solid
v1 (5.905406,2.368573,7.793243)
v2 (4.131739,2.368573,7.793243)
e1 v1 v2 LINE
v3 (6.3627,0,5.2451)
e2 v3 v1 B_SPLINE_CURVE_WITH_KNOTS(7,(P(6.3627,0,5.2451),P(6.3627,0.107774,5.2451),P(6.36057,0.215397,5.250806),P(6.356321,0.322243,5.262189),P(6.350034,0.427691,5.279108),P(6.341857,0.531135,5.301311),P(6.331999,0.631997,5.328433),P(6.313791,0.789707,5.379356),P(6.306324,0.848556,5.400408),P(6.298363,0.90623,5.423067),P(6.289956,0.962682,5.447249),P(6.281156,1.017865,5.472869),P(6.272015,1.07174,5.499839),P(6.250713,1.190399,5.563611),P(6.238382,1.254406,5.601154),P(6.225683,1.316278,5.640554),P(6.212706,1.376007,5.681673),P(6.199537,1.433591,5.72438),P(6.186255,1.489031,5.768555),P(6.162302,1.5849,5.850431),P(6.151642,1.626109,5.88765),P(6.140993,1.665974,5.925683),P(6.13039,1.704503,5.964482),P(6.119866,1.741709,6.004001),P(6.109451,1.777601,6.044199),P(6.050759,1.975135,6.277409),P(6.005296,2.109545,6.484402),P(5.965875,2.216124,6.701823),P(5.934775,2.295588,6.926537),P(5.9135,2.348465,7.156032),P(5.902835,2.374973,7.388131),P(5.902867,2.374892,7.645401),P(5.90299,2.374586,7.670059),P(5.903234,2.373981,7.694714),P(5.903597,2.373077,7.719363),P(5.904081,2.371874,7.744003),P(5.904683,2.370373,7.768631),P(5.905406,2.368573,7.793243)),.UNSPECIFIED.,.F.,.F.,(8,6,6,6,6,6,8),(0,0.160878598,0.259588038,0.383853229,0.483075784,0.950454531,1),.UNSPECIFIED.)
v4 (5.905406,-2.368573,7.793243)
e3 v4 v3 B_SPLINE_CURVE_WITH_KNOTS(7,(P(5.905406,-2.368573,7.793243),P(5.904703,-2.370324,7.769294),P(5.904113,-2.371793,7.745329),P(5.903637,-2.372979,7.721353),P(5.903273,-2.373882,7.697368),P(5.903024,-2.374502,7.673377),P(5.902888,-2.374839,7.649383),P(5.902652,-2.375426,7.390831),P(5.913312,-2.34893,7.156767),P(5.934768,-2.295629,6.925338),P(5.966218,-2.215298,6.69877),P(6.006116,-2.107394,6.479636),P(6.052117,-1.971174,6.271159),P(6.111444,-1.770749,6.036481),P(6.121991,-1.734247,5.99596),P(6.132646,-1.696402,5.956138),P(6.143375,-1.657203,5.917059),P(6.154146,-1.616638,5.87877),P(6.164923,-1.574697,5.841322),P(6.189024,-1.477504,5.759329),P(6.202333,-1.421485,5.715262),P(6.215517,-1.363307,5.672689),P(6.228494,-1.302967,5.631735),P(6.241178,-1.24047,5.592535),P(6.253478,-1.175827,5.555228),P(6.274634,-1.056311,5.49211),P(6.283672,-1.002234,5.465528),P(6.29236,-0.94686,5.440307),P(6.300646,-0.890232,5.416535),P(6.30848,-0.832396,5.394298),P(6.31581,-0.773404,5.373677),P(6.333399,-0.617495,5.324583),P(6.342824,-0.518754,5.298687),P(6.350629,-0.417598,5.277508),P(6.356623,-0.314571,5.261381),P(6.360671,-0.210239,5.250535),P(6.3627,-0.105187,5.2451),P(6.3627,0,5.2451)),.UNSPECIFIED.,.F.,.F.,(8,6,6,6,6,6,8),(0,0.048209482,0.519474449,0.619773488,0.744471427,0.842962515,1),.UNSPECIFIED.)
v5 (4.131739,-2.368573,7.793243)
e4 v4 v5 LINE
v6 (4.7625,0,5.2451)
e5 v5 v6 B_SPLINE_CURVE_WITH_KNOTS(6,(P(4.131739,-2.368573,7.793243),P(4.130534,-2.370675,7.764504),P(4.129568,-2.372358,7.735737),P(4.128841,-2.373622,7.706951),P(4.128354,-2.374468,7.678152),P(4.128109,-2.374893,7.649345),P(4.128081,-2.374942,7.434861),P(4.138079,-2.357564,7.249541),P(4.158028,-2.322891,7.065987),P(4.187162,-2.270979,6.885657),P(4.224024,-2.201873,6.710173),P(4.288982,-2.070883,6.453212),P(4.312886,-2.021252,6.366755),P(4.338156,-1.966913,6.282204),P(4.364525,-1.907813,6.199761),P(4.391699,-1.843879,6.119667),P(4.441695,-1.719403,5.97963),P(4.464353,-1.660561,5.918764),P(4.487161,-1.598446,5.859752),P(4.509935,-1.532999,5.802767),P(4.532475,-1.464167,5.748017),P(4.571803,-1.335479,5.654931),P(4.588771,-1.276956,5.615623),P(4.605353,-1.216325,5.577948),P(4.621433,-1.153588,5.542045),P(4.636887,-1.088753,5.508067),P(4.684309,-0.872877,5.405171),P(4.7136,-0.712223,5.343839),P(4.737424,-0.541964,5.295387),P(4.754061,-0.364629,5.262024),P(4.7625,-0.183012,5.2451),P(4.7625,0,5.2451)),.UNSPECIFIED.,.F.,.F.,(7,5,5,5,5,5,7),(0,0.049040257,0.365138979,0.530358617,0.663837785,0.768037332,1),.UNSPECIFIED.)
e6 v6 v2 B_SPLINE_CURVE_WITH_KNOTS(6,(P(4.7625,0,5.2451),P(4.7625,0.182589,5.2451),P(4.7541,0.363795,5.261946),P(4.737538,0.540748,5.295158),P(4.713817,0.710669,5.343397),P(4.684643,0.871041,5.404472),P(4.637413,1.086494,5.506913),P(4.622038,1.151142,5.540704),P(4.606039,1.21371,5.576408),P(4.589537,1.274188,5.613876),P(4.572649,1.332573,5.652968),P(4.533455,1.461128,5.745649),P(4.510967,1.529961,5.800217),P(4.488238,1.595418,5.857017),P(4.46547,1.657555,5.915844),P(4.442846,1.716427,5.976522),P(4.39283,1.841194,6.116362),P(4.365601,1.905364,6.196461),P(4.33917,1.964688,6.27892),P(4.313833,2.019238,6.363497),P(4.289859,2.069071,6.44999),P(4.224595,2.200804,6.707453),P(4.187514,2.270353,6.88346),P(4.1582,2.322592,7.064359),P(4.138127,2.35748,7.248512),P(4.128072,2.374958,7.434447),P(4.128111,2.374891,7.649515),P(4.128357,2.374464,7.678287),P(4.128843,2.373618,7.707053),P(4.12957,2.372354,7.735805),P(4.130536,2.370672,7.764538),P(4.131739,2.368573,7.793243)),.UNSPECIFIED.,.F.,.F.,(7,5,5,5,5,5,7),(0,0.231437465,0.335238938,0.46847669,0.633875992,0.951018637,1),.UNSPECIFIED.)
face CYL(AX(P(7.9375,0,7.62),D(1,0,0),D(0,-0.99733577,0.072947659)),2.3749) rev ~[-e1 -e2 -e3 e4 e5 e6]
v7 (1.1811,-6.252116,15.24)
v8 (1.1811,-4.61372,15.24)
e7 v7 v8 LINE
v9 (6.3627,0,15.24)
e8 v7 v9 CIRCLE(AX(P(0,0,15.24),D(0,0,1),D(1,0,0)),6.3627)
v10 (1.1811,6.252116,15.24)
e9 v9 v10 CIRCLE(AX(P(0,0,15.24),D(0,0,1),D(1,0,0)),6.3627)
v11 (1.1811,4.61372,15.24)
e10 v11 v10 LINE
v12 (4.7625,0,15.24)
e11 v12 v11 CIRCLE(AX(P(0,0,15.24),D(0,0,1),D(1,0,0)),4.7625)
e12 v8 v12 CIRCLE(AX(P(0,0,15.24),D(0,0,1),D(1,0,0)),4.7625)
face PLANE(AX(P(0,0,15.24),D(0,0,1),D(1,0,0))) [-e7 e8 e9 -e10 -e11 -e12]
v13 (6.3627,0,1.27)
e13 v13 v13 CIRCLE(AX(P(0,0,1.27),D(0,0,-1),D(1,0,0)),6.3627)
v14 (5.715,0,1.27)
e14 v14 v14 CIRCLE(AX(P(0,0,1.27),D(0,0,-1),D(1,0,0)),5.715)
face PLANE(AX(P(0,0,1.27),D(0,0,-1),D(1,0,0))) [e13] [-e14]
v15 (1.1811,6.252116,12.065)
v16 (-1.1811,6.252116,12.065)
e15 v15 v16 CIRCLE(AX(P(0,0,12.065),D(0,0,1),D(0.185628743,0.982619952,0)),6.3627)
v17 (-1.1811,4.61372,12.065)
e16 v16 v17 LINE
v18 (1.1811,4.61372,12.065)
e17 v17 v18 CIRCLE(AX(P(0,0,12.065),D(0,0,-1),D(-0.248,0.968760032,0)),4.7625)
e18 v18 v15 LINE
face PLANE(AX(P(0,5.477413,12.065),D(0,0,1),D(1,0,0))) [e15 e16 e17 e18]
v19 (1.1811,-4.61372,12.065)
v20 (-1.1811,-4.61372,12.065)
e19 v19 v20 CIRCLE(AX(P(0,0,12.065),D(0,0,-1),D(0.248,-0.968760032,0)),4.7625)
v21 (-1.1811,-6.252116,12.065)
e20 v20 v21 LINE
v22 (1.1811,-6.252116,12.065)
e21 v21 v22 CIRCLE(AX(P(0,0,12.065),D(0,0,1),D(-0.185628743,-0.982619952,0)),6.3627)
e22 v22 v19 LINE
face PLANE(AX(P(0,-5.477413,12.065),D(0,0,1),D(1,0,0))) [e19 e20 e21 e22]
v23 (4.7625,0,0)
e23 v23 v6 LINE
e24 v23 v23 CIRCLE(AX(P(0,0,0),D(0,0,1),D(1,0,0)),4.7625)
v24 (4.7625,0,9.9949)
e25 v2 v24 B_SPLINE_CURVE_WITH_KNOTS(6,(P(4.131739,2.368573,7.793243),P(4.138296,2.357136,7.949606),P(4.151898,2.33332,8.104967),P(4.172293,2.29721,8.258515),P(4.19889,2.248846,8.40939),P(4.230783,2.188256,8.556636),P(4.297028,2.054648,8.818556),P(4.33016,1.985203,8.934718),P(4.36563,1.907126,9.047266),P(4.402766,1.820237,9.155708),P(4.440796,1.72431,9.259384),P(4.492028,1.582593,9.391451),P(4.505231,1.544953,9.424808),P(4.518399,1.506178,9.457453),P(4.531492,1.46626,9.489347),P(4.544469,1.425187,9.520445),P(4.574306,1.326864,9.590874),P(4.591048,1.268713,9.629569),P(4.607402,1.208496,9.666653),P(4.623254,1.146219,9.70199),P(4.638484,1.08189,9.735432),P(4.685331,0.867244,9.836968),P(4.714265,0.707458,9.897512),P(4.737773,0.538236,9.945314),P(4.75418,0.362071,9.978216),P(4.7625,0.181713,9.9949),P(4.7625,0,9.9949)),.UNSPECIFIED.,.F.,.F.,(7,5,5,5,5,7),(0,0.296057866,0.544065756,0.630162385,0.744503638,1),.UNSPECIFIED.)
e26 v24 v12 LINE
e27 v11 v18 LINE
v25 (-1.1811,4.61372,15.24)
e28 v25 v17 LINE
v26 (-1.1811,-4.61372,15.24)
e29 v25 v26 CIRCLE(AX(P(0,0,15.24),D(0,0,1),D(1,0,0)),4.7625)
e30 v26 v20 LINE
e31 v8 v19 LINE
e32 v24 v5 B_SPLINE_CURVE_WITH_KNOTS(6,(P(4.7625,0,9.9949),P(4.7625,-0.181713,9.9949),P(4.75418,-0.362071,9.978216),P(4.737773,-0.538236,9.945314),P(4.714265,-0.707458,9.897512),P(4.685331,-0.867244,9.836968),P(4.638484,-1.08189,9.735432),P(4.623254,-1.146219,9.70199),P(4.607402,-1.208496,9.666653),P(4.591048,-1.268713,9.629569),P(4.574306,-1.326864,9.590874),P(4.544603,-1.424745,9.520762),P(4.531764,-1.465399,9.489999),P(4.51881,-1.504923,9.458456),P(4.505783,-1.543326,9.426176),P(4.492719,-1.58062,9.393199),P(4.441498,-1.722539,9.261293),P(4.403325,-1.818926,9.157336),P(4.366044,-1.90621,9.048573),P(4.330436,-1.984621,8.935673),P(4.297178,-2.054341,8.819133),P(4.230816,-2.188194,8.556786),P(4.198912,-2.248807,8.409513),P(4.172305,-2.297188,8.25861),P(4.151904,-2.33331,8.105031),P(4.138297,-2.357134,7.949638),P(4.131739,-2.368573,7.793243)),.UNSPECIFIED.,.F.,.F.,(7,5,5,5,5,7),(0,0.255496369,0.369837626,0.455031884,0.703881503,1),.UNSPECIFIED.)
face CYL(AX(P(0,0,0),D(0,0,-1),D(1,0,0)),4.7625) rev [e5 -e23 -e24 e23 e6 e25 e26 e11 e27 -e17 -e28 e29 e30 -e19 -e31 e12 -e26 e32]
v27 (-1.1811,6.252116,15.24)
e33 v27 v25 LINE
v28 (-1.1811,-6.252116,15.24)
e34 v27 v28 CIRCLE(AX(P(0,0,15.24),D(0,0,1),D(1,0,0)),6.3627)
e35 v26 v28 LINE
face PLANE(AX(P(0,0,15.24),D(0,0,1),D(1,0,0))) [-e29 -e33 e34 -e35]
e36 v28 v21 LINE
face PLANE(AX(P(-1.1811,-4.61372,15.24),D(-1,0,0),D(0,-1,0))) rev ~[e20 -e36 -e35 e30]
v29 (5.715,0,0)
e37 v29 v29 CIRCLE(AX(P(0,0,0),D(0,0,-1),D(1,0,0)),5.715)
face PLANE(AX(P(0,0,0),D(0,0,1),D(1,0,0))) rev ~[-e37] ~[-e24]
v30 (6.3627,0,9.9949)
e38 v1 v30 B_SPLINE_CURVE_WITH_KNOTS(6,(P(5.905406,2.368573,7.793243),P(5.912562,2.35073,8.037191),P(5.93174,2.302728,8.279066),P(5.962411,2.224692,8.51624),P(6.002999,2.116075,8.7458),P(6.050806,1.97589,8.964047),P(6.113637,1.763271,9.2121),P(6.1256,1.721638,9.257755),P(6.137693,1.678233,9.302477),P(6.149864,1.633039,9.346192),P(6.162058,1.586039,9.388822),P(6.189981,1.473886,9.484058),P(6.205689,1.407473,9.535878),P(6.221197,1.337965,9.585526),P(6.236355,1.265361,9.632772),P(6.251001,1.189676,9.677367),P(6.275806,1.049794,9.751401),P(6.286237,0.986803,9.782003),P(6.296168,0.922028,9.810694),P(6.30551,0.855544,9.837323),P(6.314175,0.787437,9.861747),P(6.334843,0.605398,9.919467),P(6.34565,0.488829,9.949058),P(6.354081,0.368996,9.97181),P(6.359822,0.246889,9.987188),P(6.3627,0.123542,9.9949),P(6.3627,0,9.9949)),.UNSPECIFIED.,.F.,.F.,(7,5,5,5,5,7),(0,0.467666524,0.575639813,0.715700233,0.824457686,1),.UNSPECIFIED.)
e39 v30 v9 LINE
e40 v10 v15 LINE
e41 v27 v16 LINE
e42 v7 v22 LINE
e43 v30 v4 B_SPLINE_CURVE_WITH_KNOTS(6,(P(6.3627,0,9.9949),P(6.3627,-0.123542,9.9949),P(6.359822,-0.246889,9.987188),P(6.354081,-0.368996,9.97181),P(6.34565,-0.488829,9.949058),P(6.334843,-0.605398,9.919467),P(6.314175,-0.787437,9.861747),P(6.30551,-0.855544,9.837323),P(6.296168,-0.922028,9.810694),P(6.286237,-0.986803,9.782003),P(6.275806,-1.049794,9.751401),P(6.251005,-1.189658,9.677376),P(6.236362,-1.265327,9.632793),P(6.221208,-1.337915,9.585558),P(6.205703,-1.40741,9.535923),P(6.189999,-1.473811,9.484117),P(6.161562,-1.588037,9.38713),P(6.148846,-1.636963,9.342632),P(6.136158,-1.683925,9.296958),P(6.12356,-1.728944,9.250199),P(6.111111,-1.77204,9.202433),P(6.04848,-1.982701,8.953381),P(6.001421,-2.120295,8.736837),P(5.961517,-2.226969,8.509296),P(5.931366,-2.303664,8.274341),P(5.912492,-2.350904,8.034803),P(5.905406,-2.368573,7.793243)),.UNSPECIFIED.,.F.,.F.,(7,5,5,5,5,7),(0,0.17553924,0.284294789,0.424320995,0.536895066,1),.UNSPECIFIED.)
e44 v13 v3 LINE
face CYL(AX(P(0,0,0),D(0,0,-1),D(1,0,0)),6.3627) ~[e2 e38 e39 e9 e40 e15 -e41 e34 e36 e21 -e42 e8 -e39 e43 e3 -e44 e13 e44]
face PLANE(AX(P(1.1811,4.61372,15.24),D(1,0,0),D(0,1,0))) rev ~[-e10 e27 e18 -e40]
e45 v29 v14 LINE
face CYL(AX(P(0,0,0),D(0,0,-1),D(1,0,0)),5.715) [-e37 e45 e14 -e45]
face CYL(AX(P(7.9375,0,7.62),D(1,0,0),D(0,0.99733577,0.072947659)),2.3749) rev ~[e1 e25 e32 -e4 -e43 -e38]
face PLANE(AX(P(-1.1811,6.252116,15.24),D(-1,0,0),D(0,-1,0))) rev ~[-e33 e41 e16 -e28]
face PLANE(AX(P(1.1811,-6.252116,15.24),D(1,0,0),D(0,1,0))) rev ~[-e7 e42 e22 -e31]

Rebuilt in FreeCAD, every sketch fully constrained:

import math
import FreeCAD as App
import Part
import Sketcher
from FreeCAD import Vector
Q = App.Units.Quantity

doc = App.newDocument("Part")
params = doc.addObject("Spreadsheet::Sheet", "Params")
for row, (alias, value) in enumerate([
    ("sketch1_diameter", "0.501 in"),
    ("sketch1_diameter2", "0.375 in"),
    ("pad1_length", "0.6 in"),
    ("sketch2_diameter", "0.45 in"),
    ("sketch2_diameter2", "0.501 in"),
    ("pocket1_length", "0.05 in"),
    ("pocket2_length", "0.2 in"),
    ("sketch4_radius", "0.1875 in"),
    ("pocket3_length", "0.125 in"),
], start=1):
    params.set(f"A{row}", alias)
    params.set(f"B{row}", "=" + value)
    params.setAlias(f"B{row}", alias)

body = doc.addObject("PartDesign::Body", "Body")

# Sketch on XY plane
sketch1 = body.newObject("Sketcher::SketchObject", "Sketch")
sketch1.AttachmentSupport = (doc.getObject("XY_Plane"), [""])
sketch1.MapMode = "FlatFace"
sketch1.addGeometry(Part.Circle(Vector(0, 0, 0), Vector(0, 0, 1), 6.4), False)
sketch1.addGeometry(Part.Circle(Vector(0, 0, 0), Vector(0, 0, 1), 4.8), False)
sketch1.addConstraint(Sketcher.Constraint("Coincident", 0, 3, -1, 1))
sketch1.addConstraint(Sketcher.Constraint("Coincident", 1, 3, -1, 1))
sketch1.addConstraint(Sketcher.Constraint("Diameter", 0, Q("0.501 in")))
sketch1.addConstraint(Sketcher.Constraint("Diameter", 1, Q("0.375 in")))
sketch1.setExpression("Constraints[2]", "Params.sketch1_diameter")
sketch1.setExpression("Constraints[3]", "Params.sketch1_diameter2")
pad1 = body.newObject("PartDesign::Pad", "Pad")
pad1.Profile = sketch1
pad1.setExpression("Length", "Params.pad1_length")

# Sketch on XY plane
sketch2 = body.newObject("Sketcher::SketchObject", "Sketch001")
sketch2.AttachmentSupport = (doc.getObject("XY_Plane"), [""])
sketch2.MapMode = "FlatFace"
sketch2.addGeometry(Part.Circle(Vector(0, 0, 0), Vector(0, 0, 1), 6), False)
sketch2.addGeometry(Part.Circle(Vector(0, 0, 0), Vector(0, 0, 1), 6), False)
sketch2.addConstraint(Sketcher.Constraint("Coincident", 0, 3, -1, 1))
sketch2.addConstraint(Sketcher.Constraint("Coincident", 1, 3, -1, 1))
sketch2.addConstraint(Sketcher.Constraint("Diameter", 1, Q("0.45 in")))
sketch2.addConstraint(Sketcher.Constraint("Diameter", 0, Q("0.501 in")))
sketch2.setExpression("Constraints[2]", "Params.sketch2_diameter")
sketch2.setExpression("Constraints[3]", "Params.sketch2_diameter2")
pocket1 = body.newObject("PartDesign::Pocket", "Pocket")
pocket1.Profile = sketch2
pocket1.setExpression("Length", "Params.pocket1_length")
pocket1.Reversed = True

# Sketch on YZ plane
sketch3 = body.newObject("Sketcher::SketchObject", "Sketch002")
sketch3.AttachmentSupport = (doc.getObject("YZ_Plane"), [""])
sketch3.MapMode = "FlatFace"
sketch3.AttachmentOffset = App.Placement(Vector(0, 0, 0.3125 * 25.4), App.Rotation())
sketch3.addGeometry(Part.ArcOfCircle(Part.Circle(Vector(0, 7.6, 0), Vector(0, 0, 1), 2.4), math.radians(4), math.radians(176)), False)
sketch3.addGeometry(Part.ArcOfCircle(Part.Circle(Vector(0, 7.6, 0), Vector(0, 0, 1), 2.4), math.radians(176), math.radians(364)), False)
sketch3.addConstraint(Sketcher.Constraint("Tangent", 0, 1, 1, 2))
sketch3.addConstraint(Sketcher.Constraint("Coincident", 1, 1, 0, 2))
sketch3.addConstraint(Sketcher.Constraint("Symmetric", 0, 1, 1, 1, -2))
sketch3.addConstraint(Sketcher.Constraint("DistanceY", -1, 1, 0, 3, Q("0.3 in")))
sketch3.addConstraint(Sketcher.Constraint("Radius", 0, Q("0.0935 in")))
sketch3.addConstraint(Sketcher.Constraint("DistanceX", -1, 1, 0, 1, Q("2.368573 mm")))
pocket2 = body.newObject("PartDesign::Pocket", "Pocket001")
pocket2.Profile = sketch3
pocket2.setExpression("Length", "Params.pocket2_length")

# Sketch on XY plane
sketch4 = body.newObject("Sketcher::SketchObject", "Sketch003")
sketch4.AttachmentSupport = (doc.getObject("XY_Plane"), [""])
sketch4.MapMode = "FlatFace"
sketch4.AttachmentOffset = App.Placement(Vector(0, 0, 0.6 * 25.4), App.Rotation())
sketch4.addGeometry(Part.ArcOfCircle(Part.Circle(Vector(0, 0, 0), Vector(0, 0, 1), 6.4), math.radians(79), math.radians(101)), False)
sketch4.addGeometry(Part.LineSegment(Vector(-1.2, 6.3, 0), Vector(-1.2, 4.6, 0)), False)
sketch4.addGeometry(Part.ArcOfCircle(Part.Circle(Vector(0, 0, 0), Vector(0, 0, 1), 4.8), math.radians(76), math.radians(104)), False)
sketch4.addGeometry(Part.LineSegment(Vector(1.2, 4.6, 0), Vector(1.2, 6.3, 0)), False)
sketch4.addGeometry(Part.LineSegment(Vector(-1.2, -4.6, 0), Vector(-1.2, -6.3, 0)), False)
sketch4.addGeometry(Part.ArcOfCircle(Part.Circle(Vector(0, 0, 0), Vector(0, 0, 1), 6.4), math.radians(-101), math.radians(-79)), False)
sketch4.addGeometry(Part.LineSegment(Vector(1.2, -6.3, 0), Vector(1.2, -4.6, 0)), False)
sketch4.addGeometry(Part.ArcOfCircle(Part.Circle(Vector(0, 0, 0), Vector(0, 0, 1), 4.8), math.radians(-104), math.radians(-76)), False)
sketch4.addConstraint(Sketcher.Constraint("Coincident", 0, 2, 1, 1))
sketch4.addConstraint(Sketcher.Constraint("Coincident", 1, 2, 2, 2))
sketch4.addConstraint(Sketcher.Constraint("Coincident", 2, 1, 3, 1))
sketch4.addConstraint(Sketcher.Constraint("Coincident", 3, 2, 0, 1))
sketch4.addConstraint(Sketcher.Constraint("Coincident", 4, 2, 5, 1))
sketch4.addConstraint(Sketcher.Constraint("Coincident", 5, 2, 6, 1))
sketch4.addConstraint(Sketcher.Constraint("Coincident", 6, 2, 7, 2))
sketch4.addConstraint(Sketcher.Constraint("Coincident", 7, 1, 4, 1))
sketch4.addConstraint(Sketcher.Constraint("Vertical", 1))
sketch4.addConstraint(Sketcher.Constraint("Vertical", 3))
sketch4.addConstraint(Sketcher.Constraint("Vertical", 4))
sketch4.addConstraint(Sketcher.Constraint("Vertical", 6))
sketch4.addConstraint(Sketcher.Constraint("Coincident", 0, 3, -1, 1))
sketch4.addConstraint(Sketcher.Constraint("Coincident", 2, 3, -1, 1))
sketch4.addConstraint(Sketcher.Constraint("Coincident", 5, 3, -1, 1))
sketch4.addConstraint(Sketcher.Constraint("Coincident", 7, 3, -1, 1))
sketch4.addConstraint(Sketcher.Constraint("Equal", 0, 5))
sketch4.addConstraint(Sketcher.Constraint("Equal", 2, 7))
sketch4.addConstraint(Sketcher.Constraint("Horizontal", 1, 2, 2, 1))
sketch4.addConstraint(Sketcher.Constraint("Horizontal", 4, 2, 5, 2))
sketch4.addConstraint(Sketcher.Constraint("Vertical", 1, 2, 4, 2))
sketch4.addConstraint(Sketcher.Constraint("Radius", 2, Q("0.1875 in")))
sketch4.addConstraint(Sketcher.Constraint("Radius", 0, Q("0.2505 in")))
sketch4.addConstraint(Sketcher.Constraint("DistanceX", 1, 2, 2, 1, Q("0.093 in")))
sketch4.setExpression("Constraints[21]", "Params.sketch4_radius")
pocket3 = body.newObject("PartDesign::Pocket", "Pocket002")
pocket3.Profile = sketch4
pocket3.setExpression("Length", "Params.pocket3_length")

doc.recompute()
